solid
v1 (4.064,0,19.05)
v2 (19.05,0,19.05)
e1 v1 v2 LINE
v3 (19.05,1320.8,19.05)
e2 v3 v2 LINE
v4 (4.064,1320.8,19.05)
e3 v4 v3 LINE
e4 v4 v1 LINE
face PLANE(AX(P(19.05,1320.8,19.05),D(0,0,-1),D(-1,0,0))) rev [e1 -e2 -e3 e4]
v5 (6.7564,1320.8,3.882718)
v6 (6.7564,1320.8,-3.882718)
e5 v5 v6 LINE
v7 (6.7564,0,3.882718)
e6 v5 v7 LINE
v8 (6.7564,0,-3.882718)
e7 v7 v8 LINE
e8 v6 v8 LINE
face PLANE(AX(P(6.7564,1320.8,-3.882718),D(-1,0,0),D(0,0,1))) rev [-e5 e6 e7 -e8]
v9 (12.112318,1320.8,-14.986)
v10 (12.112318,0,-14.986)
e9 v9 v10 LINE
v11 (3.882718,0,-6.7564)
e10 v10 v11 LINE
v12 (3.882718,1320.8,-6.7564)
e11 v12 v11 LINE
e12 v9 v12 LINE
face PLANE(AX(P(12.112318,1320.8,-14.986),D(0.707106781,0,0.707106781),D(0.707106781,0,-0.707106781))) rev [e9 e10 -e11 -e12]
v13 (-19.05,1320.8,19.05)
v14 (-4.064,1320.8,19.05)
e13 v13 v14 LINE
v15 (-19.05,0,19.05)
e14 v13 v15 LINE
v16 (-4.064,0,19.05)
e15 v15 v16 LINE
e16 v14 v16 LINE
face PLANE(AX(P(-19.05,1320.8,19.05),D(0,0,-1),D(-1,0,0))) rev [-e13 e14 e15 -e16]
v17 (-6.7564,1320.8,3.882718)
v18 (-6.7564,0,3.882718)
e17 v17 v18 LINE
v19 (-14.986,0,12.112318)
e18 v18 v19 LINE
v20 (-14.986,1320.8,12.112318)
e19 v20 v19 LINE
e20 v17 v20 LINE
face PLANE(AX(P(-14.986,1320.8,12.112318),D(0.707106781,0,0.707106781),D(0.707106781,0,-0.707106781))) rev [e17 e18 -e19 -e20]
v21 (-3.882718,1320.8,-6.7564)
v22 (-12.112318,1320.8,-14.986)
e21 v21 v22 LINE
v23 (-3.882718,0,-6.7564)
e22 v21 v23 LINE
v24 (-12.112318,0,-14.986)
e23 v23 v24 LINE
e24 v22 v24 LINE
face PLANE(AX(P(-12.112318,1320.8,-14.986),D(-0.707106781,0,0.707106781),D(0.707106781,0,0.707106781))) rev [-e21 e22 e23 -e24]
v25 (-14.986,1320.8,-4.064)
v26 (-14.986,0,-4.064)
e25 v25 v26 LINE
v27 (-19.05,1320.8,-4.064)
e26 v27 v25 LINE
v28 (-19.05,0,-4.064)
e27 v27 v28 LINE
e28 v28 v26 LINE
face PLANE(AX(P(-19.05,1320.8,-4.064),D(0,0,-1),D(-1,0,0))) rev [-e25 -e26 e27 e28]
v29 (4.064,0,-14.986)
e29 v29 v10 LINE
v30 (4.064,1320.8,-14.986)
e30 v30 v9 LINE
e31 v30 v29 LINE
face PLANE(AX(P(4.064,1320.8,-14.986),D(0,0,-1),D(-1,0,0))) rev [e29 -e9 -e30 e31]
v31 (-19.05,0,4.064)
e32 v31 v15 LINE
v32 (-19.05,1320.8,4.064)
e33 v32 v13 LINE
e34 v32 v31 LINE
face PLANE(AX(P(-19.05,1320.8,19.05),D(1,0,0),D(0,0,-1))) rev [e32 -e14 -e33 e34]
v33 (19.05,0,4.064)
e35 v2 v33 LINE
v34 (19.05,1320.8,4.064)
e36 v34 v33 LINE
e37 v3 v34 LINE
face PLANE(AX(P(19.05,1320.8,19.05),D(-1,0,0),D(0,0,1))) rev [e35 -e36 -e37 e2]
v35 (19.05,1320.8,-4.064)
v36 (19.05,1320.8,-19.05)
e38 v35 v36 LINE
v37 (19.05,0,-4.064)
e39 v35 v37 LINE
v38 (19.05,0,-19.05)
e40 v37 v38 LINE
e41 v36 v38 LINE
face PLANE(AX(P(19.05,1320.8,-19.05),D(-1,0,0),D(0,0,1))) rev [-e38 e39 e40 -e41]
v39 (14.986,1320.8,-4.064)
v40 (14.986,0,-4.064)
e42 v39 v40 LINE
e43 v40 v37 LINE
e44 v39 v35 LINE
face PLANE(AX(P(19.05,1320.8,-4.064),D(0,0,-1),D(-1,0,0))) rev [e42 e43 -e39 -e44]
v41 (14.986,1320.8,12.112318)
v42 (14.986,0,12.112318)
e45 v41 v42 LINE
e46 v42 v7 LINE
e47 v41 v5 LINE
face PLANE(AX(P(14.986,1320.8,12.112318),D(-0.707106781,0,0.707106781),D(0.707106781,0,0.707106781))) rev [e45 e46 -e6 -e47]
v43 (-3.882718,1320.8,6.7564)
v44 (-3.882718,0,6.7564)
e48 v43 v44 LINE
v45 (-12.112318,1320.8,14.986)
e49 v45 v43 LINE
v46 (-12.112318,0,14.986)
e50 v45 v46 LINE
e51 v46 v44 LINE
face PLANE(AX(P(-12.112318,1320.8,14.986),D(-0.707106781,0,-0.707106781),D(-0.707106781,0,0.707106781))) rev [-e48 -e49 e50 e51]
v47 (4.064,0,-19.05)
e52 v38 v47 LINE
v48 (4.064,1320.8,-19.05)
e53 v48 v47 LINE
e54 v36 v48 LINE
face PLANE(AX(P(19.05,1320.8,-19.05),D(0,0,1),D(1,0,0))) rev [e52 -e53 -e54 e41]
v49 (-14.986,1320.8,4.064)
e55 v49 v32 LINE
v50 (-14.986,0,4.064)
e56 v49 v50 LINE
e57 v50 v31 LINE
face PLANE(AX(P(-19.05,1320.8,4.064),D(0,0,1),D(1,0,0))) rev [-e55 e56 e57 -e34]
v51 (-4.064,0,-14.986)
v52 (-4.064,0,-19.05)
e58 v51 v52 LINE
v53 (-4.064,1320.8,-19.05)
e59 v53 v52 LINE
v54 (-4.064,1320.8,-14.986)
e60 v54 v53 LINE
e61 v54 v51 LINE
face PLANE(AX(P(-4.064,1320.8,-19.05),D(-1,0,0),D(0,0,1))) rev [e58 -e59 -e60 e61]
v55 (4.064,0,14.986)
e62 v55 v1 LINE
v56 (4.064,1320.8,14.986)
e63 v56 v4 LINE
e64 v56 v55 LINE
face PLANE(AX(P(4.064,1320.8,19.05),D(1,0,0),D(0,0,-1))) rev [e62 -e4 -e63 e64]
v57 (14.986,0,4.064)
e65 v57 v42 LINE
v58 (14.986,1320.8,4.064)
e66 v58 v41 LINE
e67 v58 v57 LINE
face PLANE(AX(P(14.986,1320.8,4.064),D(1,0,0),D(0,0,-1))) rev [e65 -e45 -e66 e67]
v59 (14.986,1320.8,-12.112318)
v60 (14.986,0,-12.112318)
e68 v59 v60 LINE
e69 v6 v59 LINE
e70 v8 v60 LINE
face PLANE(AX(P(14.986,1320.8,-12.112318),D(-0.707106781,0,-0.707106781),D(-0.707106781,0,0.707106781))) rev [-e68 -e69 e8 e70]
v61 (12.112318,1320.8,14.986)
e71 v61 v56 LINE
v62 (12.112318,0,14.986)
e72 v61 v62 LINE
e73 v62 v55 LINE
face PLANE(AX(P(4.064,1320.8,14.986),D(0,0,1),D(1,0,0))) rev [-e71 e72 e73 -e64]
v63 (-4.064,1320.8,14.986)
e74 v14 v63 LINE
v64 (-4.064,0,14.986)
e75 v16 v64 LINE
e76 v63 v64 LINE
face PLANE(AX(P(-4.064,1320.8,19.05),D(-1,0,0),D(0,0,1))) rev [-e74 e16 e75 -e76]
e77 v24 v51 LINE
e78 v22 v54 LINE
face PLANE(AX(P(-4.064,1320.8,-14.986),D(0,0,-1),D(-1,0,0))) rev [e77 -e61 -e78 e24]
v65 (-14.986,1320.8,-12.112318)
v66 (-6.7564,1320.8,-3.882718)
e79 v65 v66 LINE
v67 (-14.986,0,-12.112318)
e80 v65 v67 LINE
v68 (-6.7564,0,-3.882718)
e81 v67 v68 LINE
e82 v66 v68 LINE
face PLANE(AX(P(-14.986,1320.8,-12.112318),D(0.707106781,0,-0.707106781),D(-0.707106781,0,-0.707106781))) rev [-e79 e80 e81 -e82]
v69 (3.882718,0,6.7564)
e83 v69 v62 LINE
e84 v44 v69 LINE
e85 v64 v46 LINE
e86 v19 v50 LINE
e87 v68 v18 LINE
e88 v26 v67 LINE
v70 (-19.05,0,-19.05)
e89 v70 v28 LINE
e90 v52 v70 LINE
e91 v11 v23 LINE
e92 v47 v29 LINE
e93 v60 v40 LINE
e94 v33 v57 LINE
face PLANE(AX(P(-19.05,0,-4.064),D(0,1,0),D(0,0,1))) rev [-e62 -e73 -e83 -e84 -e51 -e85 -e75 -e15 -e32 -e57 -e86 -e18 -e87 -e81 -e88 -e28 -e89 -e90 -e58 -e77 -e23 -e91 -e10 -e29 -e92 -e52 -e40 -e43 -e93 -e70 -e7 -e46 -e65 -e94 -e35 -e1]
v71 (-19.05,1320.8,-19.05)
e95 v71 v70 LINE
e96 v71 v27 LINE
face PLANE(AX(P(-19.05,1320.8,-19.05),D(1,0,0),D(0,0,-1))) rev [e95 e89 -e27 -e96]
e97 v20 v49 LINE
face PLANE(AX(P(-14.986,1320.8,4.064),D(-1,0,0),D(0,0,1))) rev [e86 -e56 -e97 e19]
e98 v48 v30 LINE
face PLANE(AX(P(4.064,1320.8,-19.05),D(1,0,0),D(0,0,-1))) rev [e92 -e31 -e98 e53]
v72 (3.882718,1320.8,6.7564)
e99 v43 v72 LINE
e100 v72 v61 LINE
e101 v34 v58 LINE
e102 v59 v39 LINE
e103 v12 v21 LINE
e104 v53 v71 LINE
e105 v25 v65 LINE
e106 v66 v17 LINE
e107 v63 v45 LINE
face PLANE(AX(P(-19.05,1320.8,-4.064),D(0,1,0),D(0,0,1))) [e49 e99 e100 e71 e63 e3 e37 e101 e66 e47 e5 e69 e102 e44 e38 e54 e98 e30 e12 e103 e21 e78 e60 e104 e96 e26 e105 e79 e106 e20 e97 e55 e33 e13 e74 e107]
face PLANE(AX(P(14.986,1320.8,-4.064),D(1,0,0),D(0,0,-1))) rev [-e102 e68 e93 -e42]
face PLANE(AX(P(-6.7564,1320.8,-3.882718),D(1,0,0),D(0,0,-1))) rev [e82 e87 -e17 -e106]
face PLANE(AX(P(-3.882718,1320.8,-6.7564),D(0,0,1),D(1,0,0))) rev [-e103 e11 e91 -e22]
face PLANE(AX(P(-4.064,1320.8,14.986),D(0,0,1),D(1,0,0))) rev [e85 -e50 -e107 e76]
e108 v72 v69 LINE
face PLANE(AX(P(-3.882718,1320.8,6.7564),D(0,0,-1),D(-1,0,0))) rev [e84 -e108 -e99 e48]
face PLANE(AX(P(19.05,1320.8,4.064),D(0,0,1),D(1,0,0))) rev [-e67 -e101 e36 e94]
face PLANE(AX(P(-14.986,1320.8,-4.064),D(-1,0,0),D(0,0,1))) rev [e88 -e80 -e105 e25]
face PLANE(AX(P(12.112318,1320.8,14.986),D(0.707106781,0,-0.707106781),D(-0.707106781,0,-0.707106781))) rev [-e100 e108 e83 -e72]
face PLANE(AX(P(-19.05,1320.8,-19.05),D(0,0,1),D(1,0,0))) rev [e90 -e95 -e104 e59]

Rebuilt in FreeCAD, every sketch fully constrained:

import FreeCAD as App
import Part
import Sketcher

V = App.Vector
Q = App.Units.Quantity


def add_polygon(sketch, points):
    """Adds a closed chain of lines whose ends are joined by coincident constraints."""
    first, n = sketch.GeometryCount, len(points)
    for a, b in zip(points, points[1:] + points[:1]):
        sketch.addGeometry(Part.LineSegment(App.Vector(*a, 0), App.Vector(*b, 0)), False)
    for i in range(n):
        sketch.addConstraint(Sketcher.Constraint("Coincident", first + i, 2, first + (i + 1) % n, 1))

doc = App.newDocument("Part")
body = doc.addObject("PartDesign::Body", "Body")

sketch1 = body.newObject("Sketcher::SketchObject", "Sketch")
sketch1.AttachmentSupport = (doc.getObject("XZ_Plane"), [""])
sketch1.MapMode = "FlatFace"
add_polygon(sketch1, [(-4.1, -19.1), (-19.1, -19.1), (-19.1, -4.1), (-15, -4.1), (-15, -12.1), (-6.8, -3.9), (-6.8, 3.9), (-15, 12.1), (-15, 4.1), (-19.1, 4.1), (-19.1, 19.1), (-4.1, 19.1), (-4.1, 15), (-12.1, 15), (-3.9, 6.8), (3.9, 6.8), (12.1, 15), (4.1, 15), (4.1, 19.1), (19.1, 19.1), (19.1, 4.1), (15, 4.1), (15, 12.1), (6.8, 3.9), (6.8, -3.9), (15, -12.1), (15, -4.1), (19.1, -4.1), (19.1, -19.1), (4.1, -19.1), (4.1, -15), (12.1, -15), (3.9, -6.8), (-3.9, -6.8), (-12.1, -15), (-4.1, -15)])
sketch1.addConstraint(Sketcher.Constraint("Horizontal", 0))
sketch1.addConstraint(Sketcher.Constraint("Vertical", 1))
sketch1.addConstraint(Sketcher.Constraint("Horizontal", 2))
sketch1.addConstraint(Sketcher.Constraint("Vertical", 3))
sketch1.addConstraint(Sketcher.Constraint("Vertical", 5))
sketch1.addConstraint(Sketcher.Constraint("Vertical", 7))
sketch1.addConstraint(Sketcher.Constraint("Horizontal", 8))
sketch1.addConstraint(Sketcher.Constraint("Vertical", 9))
sketch1.addConstraint(Sketcher.Constraint("Horizontal", 10))
sketch1.addConstraint(Sketcher.Constraint("Vertical", 11))
sketch1.addConstraint(Sketcher.Constraint("Horizontal", 12))
sketch1.addConstraint(Sketcher.Constraint("Horizontal", 14))
sketch1.addConstraint(Sketcher.Constraint("Horizontal", 16))
sketch1.addConstraint(Sketcher.Constraint("Vertical", 17))
sketch1.addConstraint(Sketcher.Constraint("Horizontal", 18))
sketch1.addConstraint(Sketcher.Constraint("Vertical", 19))
sketch1.addConstraint(Sketcher.Constraint("Horizontal", 20))
sketch1.addConstraint(Sketcher.Constraint("Vertical", 21))
sketch1.addConstraint(Sketcher.Constraint("Vertical", 23))
sketch1.addConstraint(Sketcher.Constraint("Vertical", 25))
sketch1.addConstraint(Sketcher.Constraint("Horizontal", 26))
sketch1.addConstraint(Sketcher.Constraint("Vertical", 27))
sketch1.addConstraint(Sketcher.Constraint("Horizontal", 28))
sketch1.addConstraint(Sketcher.Constraint("Vertical", 29))
sketch1.addConstraint(Sketcher.Constraint("Horizontal", 30))
sketch1.addConstraint(Sketcher.Constraint("Horizontal", 32))
sketch1.addConstraint(Sketcher.Constraint("Horizontal", 34))
sketch1.addConstraint(Sketcher.Constraint("Vertical", 35))
sketch1.addConstraint(Sketcher.Constraint("Symmetric", 0, 2, 18, 2, -1, 1))
sketch1.addConstraint(Sketcher.Constraint("Symmetric", 2, 2, 20, 2, -1, 1))
sketch1.addConstraint(Sketcher.Constraint("Symmetric", 4, 2, 22, 2, -1, 1))
sketch1.addConstraint(Sketcher.Constraint("Symmetric", 6, 2, 24, 2, -1, 1))
sketch1.addConstraint(Sketcher.Constraint("Symmetric", 8, 2, 26, 2, -1, 1))
sketch1.addConstraint(Sketcher.Constraint("Symmetric", 10, 2, 28, 2, -1, 1))
sketch1.addConstraint(Sketcher.Constraint("Symmetric", 12, 2, 30, 2, -1, 1))
sketch1.addConstraint(Sketcher.Constraint("Symmetric", 13, 2, 31, 2, -1, 1))
sketch1.addConstraint(Sketcher.Constraint("Symmetric", 15, 2, 33, 2, -1, 1))
sketch1.addConstraint(Sketcher.Constraint("Symmetric", 12, 2, 15, 2, -2))
sketch1.addConstraint(Sketcher.Constraint("Symmetric", 10, 2, 17, 2, -2))
sketch1.addConstraint(Sketcher.Constraint("Symmetric", 8, 2, 19, 2, -2))
sketch1.addConstraint(Sketcher.Constraint("Symmetric", 6, 2, 21, 2, -2))
sketch1.addConstraint(Sketcher.Constraint("Perpendicular", 4, 6))
sketch1.addConstraint(Sketcher.Constraint("Parallel", 6, 13))
sketch1.addConstraint(Sketcher.Constraint("Perpendicular", 13, 15))
sketch1.addConstraint(Sketcher.Constraint("Parallel", 15, 22))
sketch1.addConstraint(Sketcher.Constraint("Perpendicular", 22, 24))
sketch1.addConstraint(Sketcher.Constraint("Perpendicular", 31, 33))
sketch1.addConstraint(Sketcher.Constraint("Horizontal", 5, 2, 22, 2))
sketch1.addConstraint(Sketcher.Constraint("Vertical", 11, 2, 34, 2))
sketch1.addConstraint(Sketcher.Constraint("Equal", 28, 1))
sketch1.addConstraint(Sketcher.Constraint("Equal", 34, 3))
sketch1.addConstraint(Sketcher.Constraint("Equal", 32, 5))
sketch1.addConstraint(Sketcher.Constraint("Equal", 26, 11))
sketch1.addConstraint(Sketcher.Constraint("Equal", 6, 13))
sketch1.addConstraint(Sketcher.Constraint("DistanceX", 0, 2, 0, 1, Q("0.59 in")))
sketch1.addConstraint(Sketcher.Constraint("DistanceX", 2, 1, 2, 2, Q("0.16 in")))
sketch1.addConstraint(Sketcher.Constraint("DistanceX", 0, 2, -1, 1, Q("0.75 in")))
sketch1.addConstraint(Sketcher.Constraint("DistanceX", 4, 2, -1, 1, Q("0.266 in")))
sketch1.addConstraint(Sketcher.Constraint("DistanceX", 12, 2, 12, 1, 8.048318))
pad1 = body.newObject("PartDesign::Pad", "Pad")
pad1.Profile = sketch1
pad1.Length = Q("52 in")
pad1.Reversed = True

doc.recompute()
